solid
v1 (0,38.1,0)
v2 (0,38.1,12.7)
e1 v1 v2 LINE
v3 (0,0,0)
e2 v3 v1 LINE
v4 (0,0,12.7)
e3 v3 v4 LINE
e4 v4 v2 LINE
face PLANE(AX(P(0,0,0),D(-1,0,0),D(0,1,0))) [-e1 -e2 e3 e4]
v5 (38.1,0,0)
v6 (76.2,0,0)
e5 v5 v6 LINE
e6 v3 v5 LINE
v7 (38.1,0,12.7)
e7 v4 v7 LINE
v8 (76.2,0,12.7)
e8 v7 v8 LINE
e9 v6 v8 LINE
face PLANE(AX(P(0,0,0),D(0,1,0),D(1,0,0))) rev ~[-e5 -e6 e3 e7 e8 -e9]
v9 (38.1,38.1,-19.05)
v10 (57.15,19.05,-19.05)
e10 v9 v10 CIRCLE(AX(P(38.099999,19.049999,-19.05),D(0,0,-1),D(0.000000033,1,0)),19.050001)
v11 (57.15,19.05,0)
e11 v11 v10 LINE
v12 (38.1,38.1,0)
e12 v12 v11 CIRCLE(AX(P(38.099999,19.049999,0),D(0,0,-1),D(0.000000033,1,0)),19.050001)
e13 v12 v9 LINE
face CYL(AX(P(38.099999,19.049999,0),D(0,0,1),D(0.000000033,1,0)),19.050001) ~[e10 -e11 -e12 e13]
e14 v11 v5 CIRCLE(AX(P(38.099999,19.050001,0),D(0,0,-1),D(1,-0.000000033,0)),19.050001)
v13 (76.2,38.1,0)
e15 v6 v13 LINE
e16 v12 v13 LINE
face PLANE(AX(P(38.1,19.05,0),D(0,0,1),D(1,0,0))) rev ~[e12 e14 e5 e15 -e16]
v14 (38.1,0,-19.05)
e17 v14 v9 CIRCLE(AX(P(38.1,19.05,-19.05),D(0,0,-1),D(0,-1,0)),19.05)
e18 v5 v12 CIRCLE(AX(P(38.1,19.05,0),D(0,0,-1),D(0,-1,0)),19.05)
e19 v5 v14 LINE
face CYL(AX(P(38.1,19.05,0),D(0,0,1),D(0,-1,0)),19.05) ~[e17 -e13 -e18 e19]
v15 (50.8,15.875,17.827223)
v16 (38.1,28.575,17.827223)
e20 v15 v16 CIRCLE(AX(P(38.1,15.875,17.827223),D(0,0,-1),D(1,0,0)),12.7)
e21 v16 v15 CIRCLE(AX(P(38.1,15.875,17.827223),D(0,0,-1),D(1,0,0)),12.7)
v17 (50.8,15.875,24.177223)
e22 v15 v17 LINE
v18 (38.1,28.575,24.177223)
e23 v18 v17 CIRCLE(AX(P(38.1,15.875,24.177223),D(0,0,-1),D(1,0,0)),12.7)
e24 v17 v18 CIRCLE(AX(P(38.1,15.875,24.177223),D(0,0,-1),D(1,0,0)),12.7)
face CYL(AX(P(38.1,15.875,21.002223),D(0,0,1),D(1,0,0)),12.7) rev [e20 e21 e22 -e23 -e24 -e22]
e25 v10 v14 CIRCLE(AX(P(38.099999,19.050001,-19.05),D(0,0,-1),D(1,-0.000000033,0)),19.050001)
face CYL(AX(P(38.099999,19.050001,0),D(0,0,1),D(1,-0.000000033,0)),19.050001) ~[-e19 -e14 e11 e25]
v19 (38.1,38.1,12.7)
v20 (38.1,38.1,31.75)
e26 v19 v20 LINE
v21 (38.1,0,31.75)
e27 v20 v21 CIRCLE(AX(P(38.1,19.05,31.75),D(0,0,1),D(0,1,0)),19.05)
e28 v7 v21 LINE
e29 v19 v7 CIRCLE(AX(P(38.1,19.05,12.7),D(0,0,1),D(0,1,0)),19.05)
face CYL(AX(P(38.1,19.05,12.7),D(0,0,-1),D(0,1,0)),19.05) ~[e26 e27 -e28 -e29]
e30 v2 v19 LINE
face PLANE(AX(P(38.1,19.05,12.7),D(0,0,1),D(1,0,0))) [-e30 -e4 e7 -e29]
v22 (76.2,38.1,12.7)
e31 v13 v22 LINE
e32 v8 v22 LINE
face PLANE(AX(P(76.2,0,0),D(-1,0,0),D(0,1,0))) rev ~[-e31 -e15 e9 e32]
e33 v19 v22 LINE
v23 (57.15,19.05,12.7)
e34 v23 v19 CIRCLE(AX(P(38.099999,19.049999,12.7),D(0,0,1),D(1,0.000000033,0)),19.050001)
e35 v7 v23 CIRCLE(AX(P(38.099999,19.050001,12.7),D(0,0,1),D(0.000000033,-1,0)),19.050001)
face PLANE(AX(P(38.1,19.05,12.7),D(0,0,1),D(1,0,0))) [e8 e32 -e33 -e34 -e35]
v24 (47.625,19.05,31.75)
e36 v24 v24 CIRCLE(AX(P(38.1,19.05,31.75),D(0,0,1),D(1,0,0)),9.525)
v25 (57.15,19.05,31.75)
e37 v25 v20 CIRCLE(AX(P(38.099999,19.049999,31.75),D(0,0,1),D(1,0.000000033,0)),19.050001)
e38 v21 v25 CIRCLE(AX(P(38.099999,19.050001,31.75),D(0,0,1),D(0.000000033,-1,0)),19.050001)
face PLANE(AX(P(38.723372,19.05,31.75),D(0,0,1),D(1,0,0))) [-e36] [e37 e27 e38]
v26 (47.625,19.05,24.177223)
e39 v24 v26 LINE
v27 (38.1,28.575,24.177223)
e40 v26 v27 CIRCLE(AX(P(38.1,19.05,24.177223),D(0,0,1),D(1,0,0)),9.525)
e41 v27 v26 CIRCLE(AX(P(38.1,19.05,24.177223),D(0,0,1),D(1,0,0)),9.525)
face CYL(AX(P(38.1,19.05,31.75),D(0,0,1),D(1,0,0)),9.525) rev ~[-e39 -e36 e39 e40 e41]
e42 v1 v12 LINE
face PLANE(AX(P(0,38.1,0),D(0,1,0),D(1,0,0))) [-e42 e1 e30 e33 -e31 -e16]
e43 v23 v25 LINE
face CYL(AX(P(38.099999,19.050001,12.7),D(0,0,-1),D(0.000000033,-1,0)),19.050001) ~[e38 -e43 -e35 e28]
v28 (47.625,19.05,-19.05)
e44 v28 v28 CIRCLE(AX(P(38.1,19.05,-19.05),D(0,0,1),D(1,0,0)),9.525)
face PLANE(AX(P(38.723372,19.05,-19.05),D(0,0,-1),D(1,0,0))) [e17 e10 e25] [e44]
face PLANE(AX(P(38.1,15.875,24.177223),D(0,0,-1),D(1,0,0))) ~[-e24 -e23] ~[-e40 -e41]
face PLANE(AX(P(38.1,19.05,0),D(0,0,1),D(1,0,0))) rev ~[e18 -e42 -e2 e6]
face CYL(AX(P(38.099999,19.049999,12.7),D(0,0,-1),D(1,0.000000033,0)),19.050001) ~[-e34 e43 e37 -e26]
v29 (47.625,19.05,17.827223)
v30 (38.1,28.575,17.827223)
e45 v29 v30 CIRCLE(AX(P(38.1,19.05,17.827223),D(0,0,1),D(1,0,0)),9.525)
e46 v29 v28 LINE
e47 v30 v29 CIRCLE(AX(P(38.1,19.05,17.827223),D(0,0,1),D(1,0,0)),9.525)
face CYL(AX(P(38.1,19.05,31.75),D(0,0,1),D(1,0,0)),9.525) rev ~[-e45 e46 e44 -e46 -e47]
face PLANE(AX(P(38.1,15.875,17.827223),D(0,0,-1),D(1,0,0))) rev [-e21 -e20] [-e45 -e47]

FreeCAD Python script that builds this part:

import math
import FreeCAD as App
import Part
import Sketcher
Q = App.Units.Quantity


def add_polygon(sketch, points):
    """Adds a closed chain of lines whose ends are joined by coincident constraints."""
    first, n = sketch.GeometryCount, len(points)
    for a, b in zip(points, points[1:] + points[:1]):
        sketch.addGeometry(Part.LineSegment(App.Vector(*a, 0), App.Vector(*b, 0)), False)
    for i in range(n):
        sketch.addConstraint(Sketcher.Constraint("Coincident", first + i, 2, first + (i + 1) % n, 1))

doc = App.newDocument("Part")
params = doc.addObject("Spreadsheet::Sheet", "Params")
for row, (alias, value) in enumerate([
    ("sketch1_width", "3 in"),
    ("sketch1_height", "1.5 in"),
    ("pad1_length", "0.5 in"),
    ("sketch2_radius", "0.75 in"),
    ("pad2_length", "0.75 in"),
    ("sketch3_radius", "0.75 in"),
    ("pad3_length", "0.75 in"),
    ("sketch4_diameter", "0.75 in"),
    ("sketch5_width", "0.5 in"),
    ("sketch5_height", "0.25 in"),
    ("groove_angle", "360 deg"),
], start=1):
    params.set(f"A{row}", alias)
    params.set(f"B{row}", "=" + value)
    params.setAlias(f"B{row}", alias)

body = doc.addObject("PartDesign::Body", "Body")

sketch1 = body.newObject("Sketcher::SketchObject", "Sketch")
sketch1.AttachmentSupport = (doc.getObject("XY_Plane"), [""])
sketch1.MapMode = "FlatFace"
add_polygon(sketch1, [(0, 38), (0, 0), (76, 0), (76, 38)])
sketch1.addConstraint([
    Sketcher.Constraint("Vertical", 0),
    Sketcher.Constraint("Horizontal", 1),
    Sketcher.Constraint("Vertical", 2),
    Sketcher.Constraint("Horizontal", 3),
    Sketcher.Constraint("Coincident", 0, 2, -1, 1),
    Sketcher.Constraint("DistanceX", 1, 1, 1, 2, Q("3 in")),
    Sketcher.Constraint("DistanceY", 0, 2, 0, 1, Q("1.5 in")),
])
sketch1.setExpression("Constraints[9]", "Params.sketch1_width")
sketch1.setExpression("Constraints[10]", "Params.sketch1_height")
pad1 = body.newObject("PartDesign::Pad", "Pad")
pad1.Profile = sketch1
pad1.setExpression("Length", "Params.pad1_length")

sketch2 = body.newObject("Sketcher::SketchObject", "Sketch001")
sketch2.AttachmentSupport = (doc.getObject("XY_Plane"), [""])
sketch2.MapMode = "FlatFace"
sketch2.AttachmentOffset = App.Placement(App.Vector(0, 0, 0.5 * 25.4), App.Rotation())
sketch2.addGeometry([
    Part.ArcOfCircle(Part.Circle(App.Vector(38, 19, 0), App.Vector(0, 0, 1), 19), math.radians(-90), math.radians(0)),
    Part.ArcOfCircle(Part.Circle(App.Vector(38, 19, 0), App.Vector(0, 0, 1), 19), math.radians(0), math.radians(90)),
    Part.ArcOfCircle(Part.Circle(App.Vector(38, 19, 0), App.Vector(0, 0, 1), 19), math.radians(90), math.radians(270)),
], False)
sketch2.addConstraint([
    Sketcher.Constraint("Tangent", 0, 2, 1, 1),
    Sketcher.Constraint("Tangent", 1, 2, 2, 1),
    Sketcher.Constraint("Tangent", 2, 2, 0, 1),
    Sketcher.Constraint("PointOnObject", 2, 2, -1),
    Sketcher.Constraint("Horizontal", 2, 3, 0, 2),
    Sketcher.Constraint("Vertical", 2, 3, 1, 2),
    Sketcher.Constraint("Vertical", 1, 2, 2, 2),
    Sketcher.Constraint("Radius", 0, Q("0.75 in")),
    Sketcher.Constraint("DistanceX", -1, 1, 0, 3, Q("1.5 in")),
])
sketch2.setExpression("Constraints[7]", "Params.sketch2_radius")
pad2 = body.newObject("PartDesign::Pad", "Pad001")
pad2.Profile = sketch2
pad2.setExpression("Length", "Params.pad2_length")

sketch3 = body.newObject("Sketcher::SketchObject", "Sketch002")
sketch3.AttachmentSupport = (doc.getObject("XY_Plane"), [""])
sketch3.MapMode = "FlatFace"
sketch3.addGeometry([
    Part.ArcOfCircle(Part.Circle(App.Vector(38, 19, 0), App.Vector(0, 0, 1), 19), math.radians(0), math.radians(90)),
    Part.ArcOfCircle(Part.Circle(App.Vector(38, 19, 0), App.Vector(0, 0, 1), 19), math.radians(-90), math.radians(0)),
    Part.ArcOfCircle(Part.Circle(App.Vector(38, 19, 0), App.Vector(0, 0, 1), 19), math.radians(90), math.radians(270)),
], False)
sketch3.addConstraint([
    Sketcher.Constraint("Tangent", 0, 1, 1, 2),
    Sketcher.Constraint("Tangent", 1, 1, 2, 2),
    Sketcher.Constraint("Tangent", 2, 1, 0, 2),
    Sketcher.Constraint("PointOnObject", 1, 1, -1),
    Sketcher.Constraint("Horizontal", 2, 3, 0, 1),
    Sketcher.Constraint("Vertical", 2, 3, 1, 1),
    Sketcher.Constraint("Vertical", 1, 1, 2, 1),
    Sketcher.Constraint("Radius", 0, Q("0.75 in")),
    Sketcher.Constraint("DistanceX", -1, 1, 0, 3, Q("1.5 in")),
])
sketch3.setExpression("Constraints[7]", "Params.sketch3_radius")
pad3 = body.newObject("PartDesign::Pad", "Pad002")
pad3.Profile = sketch3
pad3.setExpression("Length", "Params.pad3_length")
pad3.Reversed = True

sketch4 = body.newObject("Sketcher::SketchObject", "Sketch003")
sketch4.AttachmentSupport = (doc.getObject("XY_Plane"), [""])
sketch4.MapMode = "FlatFace"
sketch4.AttachmentOffset = App.Placement(App.Vector(0, 0, 1.25 * 25.4), App.Rotation())
sketch4.addGeometry(Part.Circle(App.Vector(38, 19, 0), App.Vector(0, 0, 1), 10), False)
sketch4.addConstraint([
    Sketcher.Constraint("Diameter", 0, Q("0.75 in")),
    Sketcher.Constraint("DistanceX", -1, 1, 0, 3, Q("1.5 in")),
    Sketcher.Constraint("DistanceY", -1, 1, 0, 3, Q("0.75 in")),
])
sketch4.setExpression("Constraints[0]", "Params.sketch4_diameter")
pocket1 = body.newObject("PartDesign::Pocket", "Pocket")
pocket1.Profile = sketch4
pocket1.Type = "ThroughAll"

sketch5 = body.newObject("Sketcher::SketchObject", "Sketch004")
sketch5.AttachmentSupport = (doc.getObject("XZ_Plane"), [""])
sketch5.MapMode = "FlatFace"
sketch5.AttachmentOffset = App.Placement(App.Vector(0, 0, -0.625 * 25.4), App.Rotation())
add_polygon(sketch5, [(38, 24), (38, 18), (51, 18), (51, 24)])
sketch5.addGeometry(Part.LineSegment(App.Vector(38, 24, 0), App.Vector(38, 18, 0)), True)
sketch5.addConstraint([
    Sketcher.Constraint("Vertical", 0),
    Sketcher.Constraint("Horizontal", 1),
    Sketcher.Constraint("Vertical", 2),
    Sketcher.Constraint("Horizontal", 3),
    Sketcher.Constraint("Vertical", 4),
    Sketcher.Constraint("Coincident", 4, 1, 3, 2),
    Sketcher.Constraint("Horizontal", 1, 2, 4, 2),
    Sketcher.Constraint("DistanceX", 1, 1, 1, 2, Q("0.5 in")),
    Sketcher.Constraint("DistanceX", -1, 1, 1, 2, Q("2 in")),
    Sketcher.Constraint("DistanceY", 0, 2, 0, 1, Q("0.25 in")),
    Sketcher.Constraint("DistanceY", -1, 1, 0, 2, Q("17.827223 mm")),
])
sketch5.setExpression("Constraints[11]", "Params.sketch5_width")
sketch5.setExpression("Constraints[13]", "Params.sketch5_height")
groove = body.newObject("PartDesign::Groove", "Groove")
groove.Profile = sketch5
groove.ReferenceAxis = (sketch5, ["Axis0"])
groove.setExpression("Angle", "Params.groove_angle")

doc.recompute()
